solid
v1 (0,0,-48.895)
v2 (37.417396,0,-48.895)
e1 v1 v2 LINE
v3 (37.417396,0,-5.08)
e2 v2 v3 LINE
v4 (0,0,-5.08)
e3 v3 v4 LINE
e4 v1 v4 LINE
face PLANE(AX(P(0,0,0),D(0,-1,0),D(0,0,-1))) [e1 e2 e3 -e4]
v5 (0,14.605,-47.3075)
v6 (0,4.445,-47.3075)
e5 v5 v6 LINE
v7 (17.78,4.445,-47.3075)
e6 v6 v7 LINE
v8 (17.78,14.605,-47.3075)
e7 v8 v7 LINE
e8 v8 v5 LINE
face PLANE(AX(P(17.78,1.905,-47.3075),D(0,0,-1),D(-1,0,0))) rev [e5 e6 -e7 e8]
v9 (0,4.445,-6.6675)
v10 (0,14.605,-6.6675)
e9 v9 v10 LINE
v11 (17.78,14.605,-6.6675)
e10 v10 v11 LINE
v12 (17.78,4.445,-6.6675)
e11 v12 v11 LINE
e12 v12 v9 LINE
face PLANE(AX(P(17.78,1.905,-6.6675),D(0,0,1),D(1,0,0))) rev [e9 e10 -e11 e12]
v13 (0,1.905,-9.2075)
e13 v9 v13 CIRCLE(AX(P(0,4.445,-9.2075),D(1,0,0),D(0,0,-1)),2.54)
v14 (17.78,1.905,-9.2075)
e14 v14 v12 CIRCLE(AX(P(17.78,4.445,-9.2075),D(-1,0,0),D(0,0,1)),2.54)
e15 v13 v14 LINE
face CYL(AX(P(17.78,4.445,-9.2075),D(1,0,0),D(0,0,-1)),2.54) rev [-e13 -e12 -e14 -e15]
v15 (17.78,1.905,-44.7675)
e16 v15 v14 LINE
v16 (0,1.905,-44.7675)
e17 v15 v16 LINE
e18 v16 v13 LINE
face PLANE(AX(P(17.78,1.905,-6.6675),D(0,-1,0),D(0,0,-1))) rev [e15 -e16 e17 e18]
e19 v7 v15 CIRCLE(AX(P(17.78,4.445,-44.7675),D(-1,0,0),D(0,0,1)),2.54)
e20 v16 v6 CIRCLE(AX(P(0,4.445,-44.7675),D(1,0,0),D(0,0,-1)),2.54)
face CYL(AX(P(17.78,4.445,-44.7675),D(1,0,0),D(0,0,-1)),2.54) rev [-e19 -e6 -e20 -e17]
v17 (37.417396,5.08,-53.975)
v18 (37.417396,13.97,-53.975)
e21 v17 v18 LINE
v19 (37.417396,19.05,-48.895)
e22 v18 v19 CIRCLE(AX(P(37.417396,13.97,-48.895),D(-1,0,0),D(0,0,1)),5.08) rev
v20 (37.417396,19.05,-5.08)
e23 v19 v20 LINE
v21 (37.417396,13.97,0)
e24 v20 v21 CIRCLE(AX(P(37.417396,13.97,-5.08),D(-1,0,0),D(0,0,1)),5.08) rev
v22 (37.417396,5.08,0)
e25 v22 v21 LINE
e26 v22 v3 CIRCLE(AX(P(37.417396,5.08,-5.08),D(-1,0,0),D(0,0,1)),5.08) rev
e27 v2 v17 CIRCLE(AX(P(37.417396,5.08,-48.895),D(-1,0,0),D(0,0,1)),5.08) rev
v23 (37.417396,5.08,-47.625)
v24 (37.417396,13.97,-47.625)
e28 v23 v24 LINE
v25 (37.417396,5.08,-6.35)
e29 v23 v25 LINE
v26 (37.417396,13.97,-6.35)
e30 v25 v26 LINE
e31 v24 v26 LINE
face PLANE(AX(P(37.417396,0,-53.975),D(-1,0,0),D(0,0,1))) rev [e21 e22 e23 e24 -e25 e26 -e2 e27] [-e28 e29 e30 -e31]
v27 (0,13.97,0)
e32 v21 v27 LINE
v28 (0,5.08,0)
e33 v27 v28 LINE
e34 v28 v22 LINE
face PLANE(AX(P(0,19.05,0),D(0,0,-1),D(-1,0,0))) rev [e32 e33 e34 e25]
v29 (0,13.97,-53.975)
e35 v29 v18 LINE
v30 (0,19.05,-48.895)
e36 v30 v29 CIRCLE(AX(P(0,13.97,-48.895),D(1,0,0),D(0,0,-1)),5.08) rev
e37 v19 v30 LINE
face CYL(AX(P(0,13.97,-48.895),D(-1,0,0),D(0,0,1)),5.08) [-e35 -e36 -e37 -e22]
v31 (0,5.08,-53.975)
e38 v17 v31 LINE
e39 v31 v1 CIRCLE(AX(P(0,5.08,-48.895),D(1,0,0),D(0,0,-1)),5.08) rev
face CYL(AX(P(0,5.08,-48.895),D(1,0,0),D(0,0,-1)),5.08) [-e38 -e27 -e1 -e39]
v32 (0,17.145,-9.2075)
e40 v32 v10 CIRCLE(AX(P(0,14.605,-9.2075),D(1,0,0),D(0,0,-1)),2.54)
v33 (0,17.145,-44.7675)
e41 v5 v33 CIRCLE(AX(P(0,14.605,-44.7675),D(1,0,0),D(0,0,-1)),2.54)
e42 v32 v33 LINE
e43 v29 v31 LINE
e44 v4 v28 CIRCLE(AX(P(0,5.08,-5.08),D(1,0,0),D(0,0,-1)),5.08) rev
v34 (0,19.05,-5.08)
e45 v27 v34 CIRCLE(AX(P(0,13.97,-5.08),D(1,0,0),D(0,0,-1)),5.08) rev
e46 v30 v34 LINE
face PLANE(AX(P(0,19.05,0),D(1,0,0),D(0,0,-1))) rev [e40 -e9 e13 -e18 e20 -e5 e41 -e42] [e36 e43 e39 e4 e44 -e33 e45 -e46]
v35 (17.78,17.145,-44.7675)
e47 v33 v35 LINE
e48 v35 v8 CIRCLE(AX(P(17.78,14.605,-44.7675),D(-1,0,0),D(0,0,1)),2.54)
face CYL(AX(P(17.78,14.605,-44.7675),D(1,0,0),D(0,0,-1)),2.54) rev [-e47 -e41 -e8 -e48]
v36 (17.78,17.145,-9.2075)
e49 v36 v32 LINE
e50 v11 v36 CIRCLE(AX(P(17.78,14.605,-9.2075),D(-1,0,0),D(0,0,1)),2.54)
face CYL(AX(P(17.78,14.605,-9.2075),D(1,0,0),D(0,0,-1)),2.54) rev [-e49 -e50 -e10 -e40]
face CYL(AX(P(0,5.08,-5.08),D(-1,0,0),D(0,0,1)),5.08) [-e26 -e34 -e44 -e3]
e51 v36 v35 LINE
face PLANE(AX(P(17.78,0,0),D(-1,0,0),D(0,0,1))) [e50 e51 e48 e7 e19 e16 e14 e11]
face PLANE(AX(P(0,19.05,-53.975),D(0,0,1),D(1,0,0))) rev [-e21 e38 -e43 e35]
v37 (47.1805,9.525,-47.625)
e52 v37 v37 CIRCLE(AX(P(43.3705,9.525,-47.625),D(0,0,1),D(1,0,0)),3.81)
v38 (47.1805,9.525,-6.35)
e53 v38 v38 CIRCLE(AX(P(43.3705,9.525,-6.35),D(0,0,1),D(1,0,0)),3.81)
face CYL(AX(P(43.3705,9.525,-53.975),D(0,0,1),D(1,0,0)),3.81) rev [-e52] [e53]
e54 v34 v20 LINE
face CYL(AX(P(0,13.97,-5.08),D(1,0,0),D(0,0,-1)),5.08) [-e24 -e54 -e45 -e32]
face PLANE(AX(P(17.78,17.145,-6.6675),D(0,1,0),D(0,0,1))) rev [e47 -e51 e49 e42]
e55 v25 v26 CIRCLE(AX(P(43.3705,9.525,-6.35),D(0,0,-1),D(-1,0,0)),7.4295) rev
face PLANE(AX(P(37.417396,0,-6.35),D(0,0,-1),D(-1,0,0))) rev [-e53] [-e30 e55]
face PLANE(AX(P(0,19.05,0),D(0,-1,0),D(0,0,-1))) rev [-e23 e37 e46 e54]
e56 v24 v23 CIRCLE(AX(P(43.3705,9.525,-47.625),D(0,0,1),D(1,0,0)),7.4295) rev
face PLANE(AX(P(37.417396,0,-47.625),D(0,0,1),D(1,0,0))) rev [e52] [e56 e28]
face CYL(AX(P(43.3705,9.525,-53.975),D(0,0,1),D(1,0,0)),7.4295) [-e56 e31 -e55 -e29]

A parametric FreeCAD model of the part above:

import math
import FreeCAD as App
import Part
import Sketcher
from FreeCAD import Vector
Q = App.Units.Quantity


def edges_at(feature, points):
    """Names of the edges that pass closest to the given points."""
    edges = feature.Shape.Edges
    near = lambda p: min(range(len(edges)), key=lambda i: edges[i].distToShape(Part.Vertex(*p))[0])
    return sorted({f"Edge{near(p) + 1}" for p in points})

doc = App.newDocument("Part")
body = doc.addObject("PartDesign::Body", "Body")

sketch1 = body.newObject("Sketcher::SketchObject", "Sketch")
sketch1.AttachmentSupport = (doc.getObject("XZ_Plane"), [""])
sketch1.MapMode = "FlatFace"
sketch1.addGeometry([
    Part.LineSegment(Vector(0, -54, 0), Vector(0, 0, 0)),
    Part.LineSegment(Vector(0, 0, 0), Vector(51, 0, 0)),
    Part.LineSegment(Vector(51, 0, 0), Vector(51, -54, 0)),
    Part.LineSegment(Vector(51, -54, 0), Vector(0, -54, 0)),
], False)
sketch1.addConstraint([
    Sketcher.Constraint("Coincident", 0, 2, 1, 1),
    Sketcher.Constraint("Coincident", 1, 2, 2, 1),
    Sketcher.Constraint("Coincident", 2, 2, 3, 1),
    Sketcher.Constraint("Coincident", 3, 2, 0, 1),
    Sketcher.Constraint("Vertical", 0),
    Sketcher.Constraint("Horizontal", 1),
    Sketcher.Constraint("Vertical", 2),
    Sketcher.Constraint("Horizontal", 3),
    Sketcher.Constraint("Coincident", 0, 2, -1, 1),
    Sketcher.Constraint("DistanceX", 1, 1, 1, 2, Q("2 in")),
    Sketcher.Constraint("DistanceY", 0, 1, 0, 2, Q("2.125 in")),
])
pad1 = body.newObject("PartDesign::Pad", "Pad")
pad1.Profile = sketch1
pad1.Length = Q("0.75 in")
pad1.Reversed = True
doc.recompute()

fillet = body.newObject("PartDesign::Fillet", "Fillet")
fillet.Base = (pad1, edges_at(pad1, [
    (25.4, 19.05, -53.975),
    (25.4, 0, -53.975),
    (25.4, 0, 0),
    (25.4, 19.05, 0),
]))
fillet.Radius = Q("0.2 in")

sketch2 = body.newObject("Sketcher::SketchObject", "Sketch001")
sketch2.AttachmentSupport = (doc.getObject("XY_Plane"), [""])
sketch2.MapMode = "FlatFace"
sketch2.addGeometry([
    Part.LineSegment(Vector(50.8, 19.1, 0), Vector(37.4, 19.1, 0)),
    Part.LineSegment(Vector(37.4, 19.1, 0), Vector(37.4, 14, 0)),
    Part.ArcOfCircle(Part.Circle(Vector(43.4, 9.5, 0), Vector(0, 0, 1), 7.4), math.radians(37), math.radians(143)),
    Part.ArcOfCircle(Part.Circle(Vector(43.4, 9.5, 0), Vector(0, 0, 1), 7.4), math.radians(0), math.radians(37)),
    Part.LineSegment(Vector(50.8, 9.5, 0), Vector(50.8, 19.1, 0)),
    Part.ArcOfCircle(Part.Circle(Vector(43.4, 9.5, 0), Vector(0, 0, 1), 7.4), math.radians(-37), math.radians(0)),
    Part.ArcOfCircle(Part.Circle(Vector(43.4, 9.5, 0), Vector(0, 0, 1), 7.4), math.radians(-143), math.radians(-37)),
    Part.LineSegment(Vector(37.4, 5.1, 0), Vector(37.4, 0, 0)),
    Part.LineSegment(Vector(37.4, 0, 0), Vector(50.8, 0, 0)),
    Part.LineSegment(Vector(50.8, 0, 0), Vector(50.8, 9.5, 0)),
], False)
sketch2.addConstraint([
    Sketcher.Constraint("Coincident", 0, 2, 1, 1),
    Sketcher.Constraint("Coincident", 1, 2, 2, 2),
    Sketcher.Constraint("Tangent", 2, 1, 3, 2),
    Sketcher.Constraint("Tangent", 3, 1, 4, 1),
    Sketcher.Constraint("Coincident", 4, 2, 0, 1),
    Sketcher.Constraint("Tangent", 5, 1, 6, 2),
    Sketcher.Constraint("Coincident", 6, 1, 7, 1),
    Sketcher.Constraint("Coincident", 7, 2, 8, 1),
    Sketcher.Constraint("Coincident", 8, 2, 9, 1),
    Sketcher.Constraint("Tangent", 9, 2, 5, 2),
    Sketcher.Constraint("Horizontal", 0),
    Sketcher.Constraint("Vertical", 1),
    Sketcher.Constraint("Vertical", 4),
    Sketcher.Constraint("Vertical", 7),
    Sketcher.Constraint("Horizontal", 8),
    Sketcher.Constraint("Vertical", 9),
    Sketcher.Constraint("Coincident", 5, 3, 2, 3),
    Sketcher.Constraint("Coincident", 9, 2, 3, 1),
    Sketcher.Constraint("Equal", 5, 6),
    Sketcher.Constraint("PointOnObject", 7, 2, -1),
    Sketcher.Constraint("Horizontal", 1, 2, 2, 1),
    Sketcher.Constraint("Horizontal", 5, 1, 6, 1),
    Sketcher.Constraint("Vertical", 2, 1, 5, 1),
    Sketcher.Constraint("Equal", 1, 7),
    Sketcher.Constraint("DistanceY", 1, 2, 1, 1, Q("0.2 in")),
    Sketcher.Constraint("DistanceX", -1, 1, 3, 1, Q("2 in")),
    Sketcher.Constraint("Radius", 2, Q("0.2925 in")),
    Sketcher.Constraint("DistanceY", 4, 1, 4, 2, Q("0.375 in")),
])
pocket1 = body.newObject("PartDesign::Pocket", "Pocket")
pocket1.Profile = sketch2
pocket1.Type = "ThroughAll"

sketch3 = body.newObject("Sketcher::SketchObject", "Sketch002")
sketch3.AttachmentSupport = (doc.getObject("XZ_Plane"), [""])
sketch3.MapMode = "FlatFace"
sketch3.AttachmentOffset = App.Placement(Vector(0, 0, -0.75 * 25.4), App.Rotation())
sketch3.addGeometry([
    Part.LineSegment(Vector(37, -6, 0), Vector(37, 0, 0)),
    Part.LineSegment(Vector(37, 0, 0), Vector(52, 0, 0)),
    Part.LineSegment(Vector(52, 0, 0), Vector(52, -6, 0)),
    Part.LineSegment(Vector(52, -6, 0), Vector(37, -6, 0)),
    Part.LineSegment(Vector(37, -54, 0), Vector(37, -48, 0)),
    Part.LineSegment(Vector(37, -48, 0), Vector(55, -48, 0)),
    Part.LineSegment(Vector(55, -48, 0), Vector(55, -54, 0)),
    Part.LineSegment(Vector(55, -54, 0), Vector(37, -54, 0)),
], False)
sketch3.addConstraint([
    Sketcher.Constraint("Coincident", 0, 2, 1, 1),
    Sketcher.Constraint("Coincident", 1, 2, 2, 1),
    Sketcher.Constraint("Coincident", 2, 2, 3, 1),
    Sketcher.Constraint("Coincident", 3, 2, 0, 1),
    Sketcher.Constraint("Coincident", 4, 2, 5, 1),
    Sketcher.Constraint("Coincident", 5, 2, 6, 1),
    Sketcher.Constraint("Coincident", 6, 2, 7, 1),
    Sketcher.Constraint("Coincident", 7, 2, 4, 1),
    Sketcher.Constraint("Vertical", 0),
    Sketcher.Constraint("Horizontal", 1),
    Sketcher.Constraint("Vertical", 2),
    Sketcher.Constraint("Horizontal", 3),
    Sketcher.Constraint("Vertical", 4),
    Sketcher.Constraint("Horizontal", 5),
    Sketcher.Constraint("Vertical", 6),
    Sketcher.Constraint("Horizontal", 7),
    Sketcher.Constraint("PointOnObject", 0, 2, -1),
    Sketcher.Constraint("Vertical", 3, 2, 4, 2),
    Sketcher.Constraint("Equal", 2, 4),
    Sketcher.Constraint("DistanceY", 0, 1, 0, 2, Q("0.25 in")),
    Sketcher.Constraint("DistanceY", 4, 2, -1, 1, Q("1.875 in")),
    Sketcher.Constraint("DistanceX", 1, 1, 1, 2, Q("14.750075 mm")),
    Sketcher.Constraint("DistanceX", 5, 1, 5, 2, Q("17.214027 mm")),
    Sketcher.Constraint("DistanceX", -1, 1, 1, 2, Q("52.167472 mm")),
])
pocket2 = body.newObject("PartDesign::Pocket", "Pocket001")
pocket2.Profile = sketch3
pocket2.Length = Q("0.75 in")
pocket2.Reversed = True

sketch4 = body.newObject("Sketcher::SketchObject", "Sketch003")
sketch4.AttachmentSupport = (doc.getObject("XY_Plane"), [""])
sketch4.MapMode = "FlatFace"
sketch4.AttachmentOffset = App.Placement(Vector(0, 0, -0.25 * 25.4), App.Rotation())
sketch4.addGeometry(Part.Circle(Vector(43.4, 9.5, 0), Vector(0, 0, 1), 3.8), False)
sketch4.addConstraint([
    Sketcher.Constraint("Diameter", 0, Q("0.3 in")),
    Sketcher.Constraint("DistanceY", -1, 1, 0, 3, Q("0.375 in")),
    Sketcher.Constraint("DistanceX", -1, 1, 0, 3, Q("1.7075 in")),
])
pocket3 = body.newObject("PartDesign::Pocket", "Pocket002")
pocket3.Profile = sketch4
pocket3.Type = "ThroughAll"

sketch5 = body.newObject("Sketcher::SketchObject", "Sketch004")
sketch5.AttachmentSupport = (doc.getObject("YZ_Plane"), [""])
sketch5.MapMode = "FlatFace"
sketch5.addGeometry([
    Part.LineSegment(Vector(17, -47, 0), Vector(2, -47, 0)),
    Part.LineSegment(Vector(2, -47, 0), Vector(2, -7, 0)),
    Part.LineSegment(Vector(2, -7, 0), Vector(17, -7, 0)),
    Part.LineSegment(Vector(17, -7, 0), Vector(17, -47, 0)),
], False)
sketch5.addConstraint([
    Sketcher.Constraint("Coincident", 0, 2, 1, 1),
    Sketcher.Constraint("Coincident", 1, 2, 2, 1),
    Sketcher.Constraint("Coincident", 2, 2, 3, 1),
    Sketcher.Constraint("Coincident", 3, 2, 0, 1),
    Sketcher.Constraint("Horizontal", 0),
    Sketcher.Constraint("Vertical", 1),
    Sketcher.Constraint("Horizontal", 2),
    Sketcher.Constraint("Vertical", 3),
    Sketcher.Constraint("DistanceX", 0, 2, 0, 1, Q("0.6 in")),
    Sketcher.Constraint("DistanceY", 1, 1, 1, 2, Q("1.6 in")),
    Sketcher.Constraint("DistanceX", -1, 1, 0, 2, Q("0.075 in")),
    Sketcher.Constraint("DistanceY", 0, 2, -1, 1, Q("1.8625 in")),
])
pocket4 = body.newObject("PartDesign::Pocket", "Pocket003")
pocket4.Profile = sketch5
pocket4.Length = Q("0.7 in")
pocket4.Reversed = True
doc.recompute()

fillet2 = body.newObject("PartDesign::Fillet", "Fillet001")
fillet2.Base = (pocket4, edges_at(pocket4, [
    (8.89, 1.905, -47.307),
    (8.89, 17.145, -47.307),
    (8.89, 17.145, -6.668),
    (8.89, 1.905, -6.668),
]))
fillet2.Radius = Q("0.1 in")

doc.recompute()
